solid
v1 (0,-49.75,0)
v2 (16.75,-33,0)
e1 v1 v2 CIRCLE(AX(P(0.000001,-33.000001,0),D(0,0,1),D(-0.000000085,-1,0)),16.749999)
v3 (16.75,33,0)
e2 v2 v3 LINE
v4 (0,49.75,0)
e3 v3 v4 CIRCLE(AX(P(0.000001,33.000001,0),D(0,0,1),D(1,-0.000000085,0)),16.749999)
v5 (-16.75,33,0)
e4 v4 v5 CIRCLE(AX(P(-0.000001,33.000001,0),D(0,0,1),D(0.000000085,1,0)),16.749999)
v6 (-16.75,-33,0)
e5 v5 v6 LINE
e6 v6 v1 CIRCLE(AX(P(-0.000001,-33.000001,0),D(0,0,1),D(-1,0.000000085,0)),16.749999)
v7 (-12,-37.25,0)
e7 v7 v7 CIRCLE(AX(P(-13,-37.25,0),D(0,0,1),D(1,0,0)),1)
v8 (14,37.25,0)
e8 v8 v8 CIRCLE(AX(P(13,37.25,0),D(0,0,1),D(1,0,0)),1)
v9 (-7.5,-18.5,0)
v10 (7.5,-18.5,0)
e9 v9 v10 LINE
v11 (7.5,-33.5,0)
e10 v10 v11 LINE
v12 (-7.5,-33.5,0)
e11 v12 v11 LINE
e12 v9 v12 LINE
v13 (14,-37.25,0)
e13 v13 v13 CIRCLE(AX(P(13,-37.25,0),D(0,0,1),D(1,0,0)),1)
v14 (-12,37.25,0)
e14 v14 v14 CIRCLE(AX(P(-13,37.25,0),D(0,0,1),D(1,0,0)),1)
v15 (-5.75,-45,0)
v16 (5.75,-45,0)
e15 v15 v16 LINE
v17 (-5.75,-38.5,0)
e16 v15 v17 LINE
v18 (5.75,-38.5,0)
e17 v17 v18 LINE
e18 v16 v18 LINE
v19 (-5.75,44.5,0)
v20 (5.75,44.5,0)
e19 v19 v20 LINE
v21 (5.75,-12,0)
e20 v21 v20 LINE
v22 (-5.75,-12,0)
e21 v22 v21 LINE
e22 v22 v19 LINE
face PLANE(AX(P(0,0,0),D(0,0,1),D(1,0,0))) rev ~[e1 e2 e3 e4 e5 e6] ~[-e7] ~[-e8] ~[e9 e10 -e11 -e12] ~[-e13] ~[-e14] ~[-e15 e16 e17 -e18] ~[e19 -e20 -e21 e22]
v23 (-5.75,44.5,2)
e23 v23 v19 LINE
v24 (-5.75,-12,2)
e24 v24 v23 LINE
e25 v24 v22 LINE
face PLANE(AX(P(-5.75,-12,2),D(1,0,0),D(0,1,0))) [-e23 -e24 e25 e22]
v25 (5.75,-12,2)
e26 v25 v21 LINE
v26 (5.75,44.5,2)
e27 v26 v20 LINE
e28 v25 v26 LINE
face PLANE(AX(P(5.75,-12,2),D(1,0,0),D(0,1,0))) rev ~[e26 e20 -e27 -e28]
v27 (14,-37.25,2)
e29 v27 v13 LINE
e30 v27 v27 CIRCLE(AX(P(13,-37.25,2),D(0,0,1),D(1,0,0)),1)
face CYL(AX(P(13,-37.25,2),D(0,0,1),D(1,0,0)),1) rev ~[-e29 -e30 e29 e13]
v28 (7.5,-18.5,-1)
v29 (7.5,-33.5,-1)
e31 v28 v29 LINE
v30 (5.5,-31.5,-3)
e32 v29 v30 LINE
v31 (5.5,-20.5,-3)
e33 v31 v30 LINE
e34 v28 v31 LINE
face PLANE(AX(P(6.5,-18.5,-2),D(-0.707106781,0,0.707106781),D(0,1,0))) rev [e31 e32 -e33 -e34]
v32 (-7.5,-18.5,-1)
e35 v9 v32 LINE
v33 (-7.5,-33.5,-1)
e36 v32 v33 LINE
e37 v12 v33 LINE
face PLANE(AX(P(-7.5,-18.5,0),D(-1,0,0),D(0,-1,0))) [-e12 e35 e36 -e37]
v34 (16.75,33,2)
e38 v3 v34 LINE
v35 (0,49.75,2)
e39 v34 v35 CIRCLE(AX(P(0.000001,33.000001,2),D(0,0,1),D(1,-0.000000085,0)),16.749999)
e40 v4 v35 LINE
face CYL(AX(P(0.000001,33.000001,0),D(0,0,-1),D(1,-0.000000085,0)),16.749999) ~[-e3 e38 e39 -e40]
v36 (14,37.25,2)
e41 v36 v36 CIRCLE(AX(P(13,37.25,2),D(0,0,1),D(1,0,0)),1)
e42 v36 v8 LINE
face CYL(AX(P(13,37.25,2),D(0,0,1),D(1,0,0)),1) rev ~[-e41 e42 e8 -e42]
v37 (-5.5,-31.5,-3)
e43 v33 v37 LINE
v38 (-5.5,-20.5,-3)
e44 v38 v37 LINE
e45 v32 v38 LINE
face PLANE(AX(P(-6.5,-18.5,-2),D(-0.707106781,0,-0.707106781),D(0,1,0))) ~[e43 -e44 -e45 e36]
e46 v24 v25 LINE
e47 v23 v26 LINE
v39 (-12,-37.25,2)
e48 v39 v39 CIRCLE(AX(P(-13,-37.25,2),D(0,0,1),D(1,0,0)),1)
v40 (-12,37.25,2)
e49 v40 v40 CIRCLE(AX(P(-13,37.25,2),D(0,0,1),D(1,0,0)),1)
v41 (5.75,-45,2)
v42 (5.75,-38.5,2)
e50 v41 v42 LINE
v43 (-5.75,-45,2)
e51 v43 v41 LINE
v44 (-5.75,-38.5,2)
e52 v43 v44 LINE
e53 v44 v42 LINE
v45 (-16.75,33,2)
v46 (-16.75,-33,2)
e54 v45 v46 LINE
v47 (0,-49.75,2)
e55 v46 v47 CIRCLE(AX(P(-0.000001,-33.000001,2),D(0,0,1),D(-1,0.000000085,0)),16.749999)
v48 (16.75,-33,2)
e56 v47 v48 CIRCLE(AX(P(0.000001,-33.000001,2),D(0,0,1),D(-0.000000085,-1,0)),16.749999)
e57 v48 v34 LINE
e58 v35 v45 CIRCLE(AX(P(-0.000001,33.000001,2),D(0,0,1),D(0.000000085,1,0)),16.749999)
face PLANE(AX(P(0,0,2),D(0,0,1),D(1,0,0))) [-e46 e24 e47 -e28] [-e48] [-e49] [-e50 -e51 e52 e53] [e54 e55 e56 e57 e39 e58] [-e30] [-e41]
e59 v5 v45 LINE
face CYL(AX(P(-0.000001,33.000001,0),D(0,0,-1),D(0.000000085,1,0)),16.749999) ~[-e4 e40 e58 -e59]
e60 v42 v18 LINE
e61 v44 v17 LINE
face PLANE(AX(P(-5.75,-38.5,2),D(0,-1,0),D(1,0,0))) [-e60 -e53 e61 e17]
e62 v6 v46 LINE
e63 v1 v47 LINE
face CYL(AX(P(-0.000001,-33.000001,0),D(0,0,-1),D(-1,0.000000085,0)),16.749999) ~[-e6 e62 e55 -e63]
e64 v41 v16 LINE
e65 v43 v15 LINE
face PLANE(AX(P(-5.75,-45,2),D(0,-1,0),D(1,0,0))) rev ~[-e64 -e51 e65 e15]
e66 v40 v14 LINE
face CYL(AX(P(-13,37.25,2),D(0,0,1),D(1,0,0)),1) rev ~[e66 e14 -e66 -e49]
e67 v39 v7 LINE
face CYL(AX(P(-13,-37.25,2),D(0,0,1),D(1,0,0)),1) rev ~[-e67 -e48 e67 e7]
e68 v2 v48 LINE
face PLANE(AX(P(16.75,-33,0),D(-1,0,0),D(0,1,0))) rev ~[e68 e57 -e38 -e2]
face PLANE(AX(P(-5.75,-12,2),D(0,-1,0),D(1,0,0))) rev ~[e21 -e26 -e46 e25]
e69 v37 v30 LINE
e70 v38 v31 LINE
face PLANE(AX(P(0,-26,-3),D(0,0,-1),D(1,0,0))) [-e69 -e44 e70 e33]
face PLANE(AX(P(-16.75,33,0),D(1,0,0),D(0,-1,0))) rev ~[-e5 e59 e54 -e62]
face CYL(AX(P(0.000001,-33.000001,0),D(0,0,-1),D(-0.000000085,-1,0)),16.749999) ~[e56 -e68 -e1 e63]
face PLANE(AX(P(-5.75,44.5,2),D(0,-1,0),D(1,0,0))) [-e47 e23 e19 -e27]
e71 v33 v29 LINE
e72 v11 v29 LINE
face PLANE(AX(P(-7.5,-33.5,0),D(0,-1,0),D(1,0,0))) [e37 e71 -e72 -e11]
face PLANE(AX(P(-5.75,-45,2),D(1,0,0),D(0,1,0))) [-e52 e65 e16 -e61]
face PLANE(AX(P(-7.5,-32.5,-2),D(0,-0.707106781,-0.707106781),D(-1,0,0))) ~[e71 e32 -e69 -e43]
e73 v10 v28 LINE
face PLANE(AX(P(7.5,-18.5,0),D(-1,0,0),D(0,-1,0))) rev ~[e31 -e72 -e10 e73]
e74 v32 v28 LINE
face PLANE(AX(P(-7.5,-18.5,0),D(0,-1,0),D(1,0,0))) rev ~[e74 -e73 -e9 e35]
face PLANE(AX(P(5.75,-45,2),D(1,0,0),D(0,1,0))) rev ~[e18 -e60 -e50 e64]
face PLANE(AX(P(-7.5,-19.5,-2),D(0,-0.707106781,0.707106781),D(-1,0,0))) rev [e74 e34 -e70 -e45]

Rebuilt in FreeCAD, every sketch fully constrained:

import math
import FreeCAD as App
import Part
import Sketcher
from FreeCAD import Vector
Q = App.Units.Quantity


def edges_at(feature, points):
    """Names of the edges that pass closest to the given points."""
    edges = feature.Shape.Edges
    near = lambda p: min(range(len(edges)), key=lambda i: edges[i].distToShape(Part.Vertex(*p))[0])
    return sorted({f"Edge{near(p) + 1}" for p in points})

doc = App.newDocument("Part")
body = doc.addObject("PartDesign::Body", "Body")

sketch1 = body.newObject("Sketcher::SketchObject", "Sketch")
sketch1.AttachmentSupport = (doc.getObject("XY_Plane"), [""])
sketch1.MapMode = "FlatFace"
sketch1.addGeometry([
    Part.LineSegment(Vector(17, -33, 0), Vector(17, 33, 0)),
    Part.ArcOfCircle(Part.Circle(Vector(0, 33, 0), Vector(0, 0, 1), 17), math.radians(0), math.radians(90)),
    Part.ArcOfCircle(Part.Circle(Vector(0, 33, 0), Vector(0, 0, 1), 17), math.radians(90), math.radians(180)),
    Part.LineSegment(Vector(-17, 33, 0), Vector(-17, -33, 0)),
    Part.ArcOfCircle(Part.Circle(Vector(0, -33, 0), Vector(0, 0, 1), 17), math.radians(180), math.radians(270)),
    Part.ArcOfCircle(Part.Circle(Vector(0, -33, 0), Vector(0, 0, 1), 17), math.radians(-90), math.radians(0)),
], False)
sketch1.addConstraint([
    Sketcher.Constraint("Tangent", 0, 2, 1, 1),
    Sketcher.Constraint("Tangent", 1, 2, 2, 1),
    Sketcher.Constraint("Tangent", 2, 2, 3, 1),
    Sketcher.Constraint("Tangent", 3, 2, 4, 1),
    Sketcher.Constraint("Tangent", 4, 2, 5, 1),
    Sketcher.Constraint("Tangent", 5, 2, 0, 1),
    Sketcher.Constraint("Vertical", 0),
    Sketcher.Constraint("Vertical", 3),
    Sketcher.Constraint("Equal", 1, 2),
    Sketcher.Constraint("Equal", 2, 4),
    Sketcher.Constraint("Symmetric", 1, 3, 4, 3, -1, 1),
    Sketcher.Constraint("PointOnObject", 1, 2, -2),
    Sketcher.Constraint("PointOnObject", 4, 2, -2),
    Sketcher.Constraint("DistanceY", 0, 1, 0, 2, Q("66 mm")),
    Sketcher.Constraint("Radius", 1, Q("16.749999 mm")),
])
pad1 = body.newObject("PartDesign::Pad", "Pad")
pad1.Profile = sketch1
pad1.Length = 2

sketch2 = body.newObject("Sketcher::SketchObject", "Sketch001")
sketch2.AttachmentSupport = (doc.getObject("XY_Plane"), [""])
sketch2.MapMode = "FlatFace"
sketch2.AttachmentOffset = App.Placement(Vector(0, 0, 2), App.Rotation())
sketch2.addGeometry([
    Part.Circle(Vector(-13, -37.2, 0), Vector(0, 0, 1), 1),
    Part.Circle(Vector(13, -37.2, 0), Vector(0, 0, 1), 1),
    Part.Circle(Vector(13, 37.2, 0), Vector(0, 0, 1), 1),
    Part.Circle(Vector(-13, 37.2, 0), Vector(0, 0, 1), 1),
], False)
sketch2.addConstraint([
    Sketcher.Constraint("Equal", 0, 1),
    Sketcher.Constraint("Equal", 1, 2),
    Sketcher.Constraint("Equal", 2, 3),
    Sketcher.Constraint("Symmetric", 0, 3, 2, 3, -1, 1),
    Sketcher.Constraint("Symmetric", 1, 3, 3, 3, -1, 1),
    Sketcher.Constraint("Symmetric", 0, 3, 1, 3, -2),
    Sketcher.Constraint("Diameter", 0, Q("2 mm")),
    Sketcher.Constraint("DistanceX", 0, 3, -1, 1, Q("13 mm")),
    Sketcher.Constraint("DistanceY", 1, 3, 2, 3, Q("74.5 mm")),
])
pocket1 = body.newObject("PartDesign::Pocket", "Pocket")
pocket1.Profile = sketch2
pocket1.Type = "ThroughAll"

sketch3 = body.newObject("Sketcher::SketchObject", "Sketch002")
sketch3.AttachmentSupport = (doc.getObject("XY_Plane"), [""])
sketch3.MapMode = "FlatFace"
sketch3.AttachmentOffset = App.Placement(Vector(0, 0, 2), App.Rotation())
sketch3.addGeometry([
    Part.LineSegment(Vector(-6, 44, 0), Vector(-6, -12, 0)),
    Part.LineSegment(Vector(-6, -12, 0), Vector(6, -12, 0)),
    Part.LineSegment(Vector(6, -12, 0), Vector(6, 44, 0)),
    Part.LineSegment(Vector(6, 44, 0), Vector(-6, 44, 0)),
    Part.LineSegment(Vector(-6, -38, 0), Vector(-6, -45, 0)),
    Part.LineSegment(Vector(-6, -45, 0), Vector(6, -45, 0)),
    Part.LineSegment(Vector(6, -45, 0), Vector(6, -38, 0)),
    Part.LineSegment(Vector(6, -38, 0), Vector(-6, -38, 0)),
], False)
sketch3.addConstraint([
    Sketcher.Constraint("Coincident", 0, 2, 1, 1),
    Sketcher.Constraint("Coincident", 1, 2, 2, 1),
    Sketcher.Constraint("Coincident", 2, 2, 3, 1),
    Sketcher.Constraint("Coincident", 3, 2, 0, 1),
    Sketcher.Constraint("Coincident", 4, 2, 5, 1),
    Sketcher.Constraint("Coincident", 5, 2, 6, 1),
    Sketcher.Constraint("Coincident", 6, 2, 7, 1),
    Sketcher.Constraint("Coincident", 7, 2, 4, 1),
    Sketcher.Constraint("Vertical", 0),
    Sketcher.Constraint("Horizontal", 1),
    Sketcher.Constraint("Vertical", 2),
    Sketcher.Constraint("Horizontal", 3),
    Sketcher.Constraint("Vertical", 4),
    Sketcher.Constraint("Horizontal", 5),
    Sketcher.Constraint("Vertical", 6),
    Sketcher.Constraint("Horizontal", 7),
    Sketcher.Constraint("Vertical", 3, 2, 4, 2),
    Sketcher.Constraint("Vertical", 2, 2, 5, 2),
    Sketcher.Constraint("DistanceX", 1, 1, 1, 2, Q("11.5 mm")),
    Sketcher.Constraint("DistanceY", 0, 2, 0, 1, Q("56.5 mm")),
    Sketcher.Constraint("DistanceY", 4, 2, 4, 1, Q("6.5 mm")),
    Sketcher.Constraint("DistanceY", 0, 2, -1, 1, Q("12 mm")),
    Sketcher.Constraint("DistanceY", 4, 2, -1, 1, Q("45 mm")),
    Sketcher.Constraint("DistanceX", 0, 2, -1, 1, Q("5.75 mm")),
])
pocket2 = body.newObject("PartDesign::Pocket", "Pocket001")
pocket2.Profile = sketch3
pocket2.Type = "ThroughAll"

sketch4 = body.newObject("Sketcher::SketchObject", "Sketch003")
sketch4.AttachmentSupport = (doc.getObject("XY_Plane"), [""])
sketch4.MapMode = "FlatFace"
sketch4.addGeometry([
    Part.LineSegment(Vector(-8, -34, 0), Vector(-8, -18, 0)),
    Part.LineSegment(Vector(-8, -18, 0), Vector(8, -18, 0)),
    Part.LineSegment(Vector(8, -18, 0), Vector(8, -34, 0)),
    Part.LineSegment(Vector(8, -34, 0), Vector(-8, -34, 0)),
], False)
sketch4.addConstraint([
    Sketcher.Constraint("Coincident", 0, 2, 1, 1),
    Sketcher.Constraint("Coincident", 1, 2, 2, 1),
    Sketcher.Constraint("Coincident", 2, 2, 3, 1),
    Sketcher.Constraint("Coincident", 3, 2, 0, 1),
    Sketcher.Constraint("Vertical", 0),
    Sketcher.Constraint("Horizontal", 1),
    Sketcher.Constraint("Vertical", 2),
    Sketcher.Constraint("Horizontal", 3),
    Sketcher.Constraint("Equal", 3, 0),
    Sketcher.Constraint("DistanceX", 1, 1, 1, 2, Q("15 mm")),
    Sketcher.Constraint("DistanceX", 0, 2, -1, 1, Q("7.5 mm")),
    Sketcher.Constraint("DistanceY", 0, 2, -1, 1, Q("18.5 mm")),
])
pad2 = body.newObject("PartDesign::Pad", "Pad001")
pad2.Profile = sketch4
pad2.Length = 3
pad2.Reversed = True
doc.recompute()

chamfer = body.newObject("PartDesign::Chamfer", "Chamfer")
chamfer.Base = (pad2, edges_at(pad2, [
    (0, -33.5, -3),
    (-7.5, -26, -3),
    (0, -18.5, -3),
    (7.5, -26, -3),
]))
chamfer.Size = 2

doc.recompute()
